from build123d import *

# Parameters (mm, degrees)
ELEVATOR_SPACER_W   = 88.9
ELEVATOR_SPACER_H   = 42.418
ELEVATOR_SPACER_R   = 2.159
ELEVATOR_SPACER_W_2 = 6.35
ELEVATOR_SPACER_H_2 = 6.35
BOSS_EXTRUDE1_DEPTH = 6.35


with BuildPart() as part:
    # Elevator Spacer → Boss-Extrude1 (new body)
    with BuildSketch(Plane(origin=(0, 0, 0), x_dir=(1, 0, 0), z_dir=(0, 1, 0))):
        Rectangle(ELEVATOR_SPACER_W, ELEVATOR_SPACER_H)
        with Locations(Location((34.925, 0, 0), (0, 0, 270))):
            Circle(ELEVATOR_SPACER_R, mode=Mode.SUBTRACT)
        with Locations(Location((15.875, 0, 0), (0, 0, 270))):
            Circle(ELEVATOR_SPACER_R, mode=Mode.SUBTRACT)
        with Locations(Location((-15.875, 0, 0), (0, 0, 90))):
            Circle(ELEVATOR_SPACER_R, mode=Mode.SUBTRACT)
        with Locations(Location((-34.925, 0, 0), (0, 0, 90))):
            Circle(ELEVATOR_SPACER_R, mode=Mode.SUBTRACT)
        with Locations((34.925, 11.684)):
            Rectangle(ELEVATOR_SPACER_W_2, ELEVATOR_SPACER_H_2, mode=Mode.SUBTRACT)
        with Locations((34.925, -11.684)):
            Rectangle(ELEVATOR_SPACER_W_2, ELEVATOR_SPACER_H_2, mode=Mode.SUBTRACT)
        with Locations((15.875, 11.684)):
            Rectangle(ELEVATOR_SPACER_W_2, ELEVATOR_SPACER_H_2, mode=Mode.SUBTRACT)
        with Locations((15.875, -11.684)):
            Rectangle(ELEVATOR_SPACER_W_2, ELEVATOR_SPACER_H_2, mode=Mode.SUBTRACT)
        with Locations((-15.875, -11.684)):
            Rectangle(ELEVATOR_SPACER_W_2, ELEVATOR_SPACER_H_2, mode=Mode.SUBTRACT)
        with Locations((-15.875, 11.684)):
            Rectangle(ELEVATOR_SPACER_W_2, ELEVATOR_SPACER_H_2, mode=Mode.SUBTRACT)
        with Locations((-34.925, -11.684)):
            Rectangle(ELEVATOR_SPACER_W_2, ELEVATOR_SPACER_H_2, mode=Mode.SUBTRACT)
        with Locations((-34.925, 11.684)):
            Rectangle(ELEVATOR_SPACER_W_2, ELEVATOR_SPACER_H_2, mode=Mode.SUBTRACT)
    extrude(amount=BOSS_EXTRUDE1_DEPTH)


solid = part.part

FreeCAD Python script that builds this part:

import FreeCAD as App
import Part
import Sketcher

V = App.Vector
Q = App.Units.Quantity


def add_polygon(sketch, points):
    """Adds a closed chain of lines whose ends are joined by coincident constraints."""
    first, n = sketch.GeometryCount, len(points)
    for a, b in zip(points, points[1:] + points[:1]):
        sketch.addGeometry(Part.LineSegment(App.Vector(*a, 0), App.Vector(*b, 0)), False)
    for i in range(n):
        sketch.addConstraint(Sketcher.Constraint("Coincident", first + i, 2, first + (i + 1) % n, 1))

doc = App.newDocument("Part")
body = doc.addObject("PartDesign::Body", "Body")

sketch1 = doc.addObject("Sketcher::SketchObject", "Sketch")
body.addObject(sketch1)
sketch1.AttachmentSupport = (doc.XZ_Plane, [""])
sketch1.MapMode = "FlatFace"
add_polygon(sketch1, [(-44.45, -21.209), (-44.45, 21.209), (44.45, 21.209), (44.45, -21.209)])
add_polygon(sketch1, [(-31.75, 14.859), (-38.1, 14.859), (-38.1, 8.509), (-31.75, 8.509)])
add_polygon(sketch1, [(-12.7, 14.859), (-19.05, 14.859), (-19.05, 8.509), (-12.7, 8.509)])
add_polygon(sketch1, [(19.05, 14.859), (12.7, 14.859), (12.7, 8.509), (19.05, 8.509)])
add_polygon(sketch1, [(38.1, 14.859), (31.75, 14.859), (31.75, 8.509), (38.1, 8.509)])
sketch1.addGeometry(Part.Circle(V(-34.925, 0, 0), V(0, 0, 1), 2.159), False)
sketch1.addGeometry(Part.Circle(V(-15.875, 0, 0), V(0, 0, 1), 2.159), False)
add_polygon(sketch1, [(-31.75, -8.509), (-38.1, -8.509), (-38.1, -14.859), (-31.75, -14.859)])
add_polygon(sketch1, [(-12.7, -8.509), (-19.05, -8.509), (-19.05, -14.859), (-12.7, -14.859)])
sketch1.addGeometry(Part.Circle(V(15.875, 0, 0), V(0, 0, 1), 2.159), False)
sketch1.addGeometry(Part.Circle(V(34.925, 0, 0), V(0, 0, 1), 2.159), False)
add_polygon(sketch1, [(19.05, -8.509), (12.7, -8.509), (12.7, -14.859), (19.05, -14.859)])
add_polygon(sketch1, [(38.1, -8.509), (31.75, -8.509), (31.75, -14.859), (38.1, -14.859)])
sketch1.addConstraint(Sketcher.Constraint("Vertical", 0))
sketch1.addConstraint(Sketcher.Constraint("Horizontal", 1))
sketch1.addConstraint(Sketcher.Constraint("Vertical", 2))
sketch1.addConstraint(Sketcher.Constraint("Horizontal", 3))
sketch1.addConstraint(Sketcher.Constraint("Horizontal", 4))
sketch1.addConstraint(Sketcher.Constraint("Vertical", 5))
sketch1.addConstraint(Sketcher.Constraint("Horizontal", 6))
sketch1.addConstraint(Sketcher.Constraint("Vertical", 7))
sketch1.addConstraint(Sketcher.Constraint("Horizontal", 8))
sketch1.addConstraint(Sketcher.Constraint("Vertical", 9))
sketch1.addConstraint(Sketcher.Constraint("Horizontal", 10))
sketch1.addConstraint(Sketcher.Constraint("Vertical", 11))
sketch1.addConstraint(Sketcher.Constraint("Horizontal", 12))
sketch1.addConstraint(Sketcher.Constraint("Vertical", 13))
sketch1.addConstraint(Sketcher.Constraint("Horizontal", 14))
sketch1.addConstraint(Sketcher.Constraint("Vertical", 15))
sketch1.addConstraint(Sketcher.Constraint("Horizontal", 16))
sketch1.addConstraint(Sketcher.Constraint("Vertical", 17))
sketch1.addConstraint(Sketcher.Constraint("Horizontal", 18))
sketch1.addConstraint(Sketcher.Constraint("Vertical", 19))
sketch1.addConstraint(Sketcher.Constraint("Horizontal", 22))
sketch1.addConstraint(Sketcher.Constraint("Vertical", 23))
sketch1.addConstraint(Sketcher.Constraint("Horizontal", 24))
sketch1.addConstraint(Sketcher.Constraint("Vertical", 25))
sketch1.addConstraint(Sketcher.Constraint("Horizontal", 26))
sketch1.addConstraint(Sketcher.Constraint("Vertical", 27))
sketch1.addConstraint(Sketcher.Constraint("Horizontal", 28))
sketch1.addConstraint(Sketcher.Constraint("Vertical", 29))
sketch1.addConstraint(Sketcher.Constraint("Horizontal", 32))
sketch1.addConstraint(Sketcher.Constraint("Vertical", 33))
sketch1.addConstraint(Sketcher.Constraint("Horizontal", 34))
sketch1.addConstraint(Sketcher.Constraint("Vertical", 35))
sketch1.addConstraint(Sketcher.Constraint("Horizontal", 36))
sketch1.addConstraint(Sketcher.Constraint("Vertical", 37))
sketch1.addConstraint(Sketcher.Constraint("Horizontal", 38))
sketch1.addConstraint(Sketcher.Constraint("Vertical", 39))
sketch1.addConstraint(Sketcher.Constraint("Equal", 20, 21))
sketch1.addConstraint(Sketcher.Constraint("Equal", 21, 30))
sketch1.addConstraint(Sketcher.Constraint("Equal", 30, 31))
sketch1.addConstraint(Sketcher.Constraint("Symmetric", 21, 3, 30, 3, -1, 1))
sketch1.addConstraint(Sketcher.Constraint("Symmetric", 20, 3, 31, 3, -1, 1))
sketch1.addConstraint(Sketcher.Constraint("Symmetric", 0, 2, 2, 2, -1, 1))
sketch1.addConstraint(Sketcher.Constraint("Symmetric", 18, 2, 22, 2, -1, 1))
sketch1.addConstraint(Sketcher.Constraint("Symmetric", 16, 2, 24, 2, -1, 1))
sketch1.addConstraint(Sketcher.Constraint("Symmetric", 14, 2, 26, 2, -1, 1))
sketch1.addConstraint(Sketcher.Constraint("Symmetric", 12, 2, 28, 2, -1, 1))
sketch1.addConstraint(Sketcher.Constraint("Symmetric", 10, 2, 32, 2, -1, 1))
sketch1.addConstraint(Sketcher.Constraint("Symmetric", 8, 2, 34, 2, -1, 1))
sketch1.addConstraint(Sketcher.Constraint("Symmetric", 6, 2, 36, 2, -1, 1))
sketch1.addConstraint(Sketcher.Constraint("Symmetric", 4, 2, 38, 2, -1, 1))
sketch1.addConstraint(Sketcher.Constraint("Symmetric", 11, 2, 12, 2, -2))
sketch1.addConstraint(Sketcher.Constraint("Symmetric", 9, 2, 14, 2, -2))
sketch1.addConstraint(Sketcher.Constraint("Symmetric", 7, 2, 16, 2, -2))
sketch1.addConstraint(Sketcher.Constraint("Symmetric", 5, 2, 18, 2, -2))
sketch1.addConstraint(Sketcher.Constraint("PointOnObject", 20, 3, -1))
sketch1.addConstraint(Sketcher.Constraint("PointOnObject", 21, 3, -1))
sketch1.addConstraint(Sketcher.Constraint("Horizontal", 7, 2, 8, 2))
sketch1.addConstraint(Sketcher.Constraint("Horizontal", 6, 2, 9, 2))
sketch1.addConstraint(Sketcher.Constraint("Equal", 6, 8))
sketch1.addConstraint(Sketcher.Constraint("Equal", 38, 5))
sketch1.addConstraint(Sketcher.Constraint("Diameter", 20, Q("0.17 in")))
sketch1.addConstraint(Sketcher.Constraint("DistanceX", 1, 1, 1, 2, Q("3.5 in")))
sketch1.addConstraint(Sketcher.Constraint("DistanceX", 20, 3, 30, 3, Q("2 in")))
sketch1.addConstraint(Sketcher.Constraint("DistanceX", 11, 2, 12, 2, Q("1 in")))
sketch1.addConstraint(Sketcher.Constraint("DistanceX", 14, 2, 1, 2, Q("1 in")))
sketch1.addConstraint(Sketcher.Constraint("DistanceY", 0, 1, 0, 2, Q("1.67 in")))
sketch1.addConstraint(Sketcher.Constraint("DistanceX", 4, 2, -1, 1, Q("1.5 in")))
sketch1.addConstraint(Sketcher.Constraint("DistanceY", 5, 2, 0, 2, Q("0.5 in")))
sketch1.addConstraint(Sketcher.Constraint("DistanceX", 20, 3, 21, 3, Q("0.75 in")))
pad1 = doc.addObject("PartDesign::Pad", "Pad")
body.addObject(pad1)
pad1.Profile = sketch1
pad1.Length = Q("0.25 in")
pad1.Reversed = True

doc.recompute()
